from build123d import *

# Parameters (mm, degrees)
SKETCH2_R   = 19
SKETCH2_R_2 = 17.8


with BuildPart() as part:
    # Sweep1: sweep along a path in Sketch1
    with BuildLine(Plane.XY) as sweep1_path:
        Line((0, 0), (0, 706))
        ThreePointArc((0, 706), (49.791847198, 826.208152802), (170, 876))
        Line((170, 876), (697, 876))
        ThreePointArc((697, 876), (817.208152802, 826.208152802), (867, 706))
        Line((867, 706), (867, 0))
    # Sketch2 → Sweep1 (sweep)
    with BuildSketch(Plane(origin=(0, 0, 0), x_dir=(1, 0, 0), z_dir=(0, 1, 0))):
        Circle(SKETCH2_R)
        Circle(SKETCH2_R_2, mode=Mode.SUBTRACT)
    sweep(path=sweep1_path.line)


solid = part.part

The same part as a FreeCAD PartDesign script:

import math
import FreeCAD as App
import Part
import Sketcher

V = App.Vector

doc = App.newDocument("Part")
body = doc.addObject("PartDesign::Body", "Body")

# Sketch on XZ plane
sketch1 = body.newObject("Sketcher::SketchObject", "Sketch")
sketch1.AttachmentSupport = (doc.getObject("XZ_Plane"), [""])
sketch1.MapMode = "FlatFace"
sketch1.addGeometry([
    Part.Circle(V(0, 0, 0), V(0, 0, 1), 19),
    Part.Circle(V(0, 0, 0), V(0, 0, 1), 18),
], False)
sketch1.addConstraint([
    Sketcher.Constraint("Coincident", 0, 3, -1, 1),
    Sketcher.Constraint("Coincident", 1, 3, -1, 1),
    Sketcher.Constraint("Diameter", 0, 38.0),
    Sketcher.Constraint("Diameter", 1, 35.6),
])

# Sketch on XY plane
sketch2 = body.newObject("Sketcher::SketchObject", "Sketch001")
sketch2.AttachmentSupport = (doc.getObject("XY_Plane"), [""])
sketch2.MapMode = "FlatFace"
sketch2.addGeometry([
    Part.LineSegment(V(0, 0, 0), V(0, 706, 0)),  # 0
    Part.ArcOfCircle(Part.Circle(V(170, 706, 0), V(0, 0, 1), 170), math.radians(90), math.radians(180)),  # 1
    Part.LineSegment(V(170, 876, 0), V(697, 876, 0)),  # 2
    Part.ArcOfCircle(Part.Circle(V(697, 706, 0), V(0, 0, 1), 170), math.radians(0), math.radians(90)),  # 3
    Part.LineSegment(V(867, 706, 0), V(867, 0, 0)),  # 4
], False)
sketch2.addConstraint([
    Sketcher.Constraint("Tangent", 0, 2, 1, 2),
    Sketcher.Constraint("Tangent", 1, 1, 2, 1),
    Sketcher.Constraint("Tangent", 2, 2, 3, 2),
    Sketcher.Constraint("Tangent", 3, 1, 4, 1),
    Sketcher.Constraint("Vertical", 0),
    Sketcher.Constraint("Horizontal", 2),
    Sketcher.Constraint("Vertical", 4),
    Sketcher.Constraint("Coincident", 0, 1, -1, 1),
    Sketcher.Constraint("Equal", 1, 3),
    Sketcher.Constraint("PointOnObject", 4, 2, -1),
    Sketcher.Constraint("Radius", 1, 170.0),
    Sketcher.Constraint("DistanceX", 2, 1, 2, 2, 527.0),
    Sketcher.Constraint("DistanceY", 0, 1, 0, 2, 706.0),
])
doc.recompute()

additivepipe = body.newObject("PartDesign::AdditivePipe", "AdditivePipe")
additivepipe.Profile = sketch1
additivepipe.Spine = (sketch2, ["Edge1", "Edge2", "Edge3", "Edge4", "Edge5"])

doc.recompute()
